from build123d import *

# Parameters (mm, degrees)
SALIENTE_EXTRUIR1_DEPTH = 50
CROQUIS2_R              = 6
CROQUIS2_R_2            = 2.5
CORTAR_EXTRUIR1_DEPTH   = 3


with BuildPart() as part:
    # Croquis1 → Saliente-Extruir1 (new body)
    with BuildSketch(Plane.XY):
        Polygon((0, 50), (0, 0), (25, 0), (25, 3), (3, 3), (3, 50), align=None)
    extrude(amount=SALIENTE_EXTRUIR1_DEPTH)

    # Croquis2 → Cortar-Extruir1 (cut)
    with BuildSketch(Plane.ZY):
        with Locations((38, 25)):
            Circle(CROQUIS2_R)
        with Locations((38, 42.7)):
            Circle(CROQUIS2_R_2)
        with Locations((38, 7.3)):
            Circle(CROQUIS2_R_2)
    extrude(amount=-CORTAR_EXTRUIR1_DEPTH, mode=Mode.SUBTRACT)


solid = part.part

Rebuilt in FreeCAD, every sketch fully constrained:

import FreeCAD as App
import Part
import Sketcher

doc = App.newDocument("Part")
body = doc.addObject("PartDesign::Body", "Body")

# Sketch on XY plane
sketch1 = body.newObject("Sketcher::SketchObject", "Sketch")
sketch1.AttachmentSupport = (doc.getObject("XY_Plane"), [""])
sketch1.MapMode = "FlatFace"
sketch1.addGeometry([
    Part.LineSegment(App.Vector(0, 50, 0), App.Vector(0, 0, 0)),  # 0
    Part.LineSegment(App.Vector(0, 0, 0), App.Vector(25, 0, 0)),  # 1
    Part.LineSegment(App.Vector(25, 0, 0), App.Vector(25, 3, 0)),  # 2
    Part.LineSegment(App.Vector(25, 3, 0), App.Vector(3, 3, 0)),  # 3
    Part.LineSegment(App.Vector(3, 3, 0), App.Vector(3, 50, 0)),  # 4
    Part.LineSegment(App.Vector(3, 50, 0), App.Vector(0, 50, 0)),  # 5
], False)
sketch1.addConstraint([
    Sketcher.Constraint("Coincident", 0, 2, 1, 1),
    Sketcher.Constraint("Coincident", 1, 2, 2, 1),
    Sketcher.Constraint("Coincident", 2, 2, 3, 1),
    Sketcher.Constraint("Coincident", 3, 2, 4, 1),
    Sketcher.Constraint("Coincident", 4, 2, 5, 1),
    Sketcher.Constraint("Coincident", 5, 2, 0, 1),
    Sketcher.Constraint("Vertical", 0),
    Sketcher.Constraint("Horizontal", 1),
    Sketcher.Constraint("Vertical", 2),
    Sketcher.Constraint("Horizontal", 3),
    Sketcher.Constraint("Vertical", 4),
    Sketcher.Constraint("Horizontal", 5),
    Sketcher.Constraint("Coincident", 0, 2, -1, 1),
    Sketcher.Constraint("Equal", 5, 2),
    Sketcher.Constraint("DistanceX", 1, 1, 1, 2, 25.0),
    Sketcher.Constraint("DistanceX", 3, 2, 3, 1, 22.0),
    Sketcher.Constraint("DistanceY", 0, 2, 0, 1, 50.0),
])
pad1 = body.newObject("PartDesign::Pad", "Pad")
pad1.Profile = sketch1
pad1.Length = 50

# Sketch on YZ plane
sketch2 = body.newObject("Sketcher::SketchObject", "Sketch001")
sketch2.AttachmentSupport = (doc.getObject("YZ_Plane"), [""])
sketch2.MapMode = "FlatFace"
sketch2.addGeometry([
    Part.Circle(App.Vector(25, 38, 0), App.Vector(0, 0, 1), 6),
    Part.Circle(App.Vector(42.7, 38, 0), App.Vector(0, 0, 1), 2.5),
    Part.Circle(App.Vector(7.3, 38, 0), App.Vector(0, 0, 1), 2.5),
], False)
sketch2.addConstraint([
    Sketcher.Constraint("Equal", 1, 2),
    Sketcher.Constraint("Horizontal", 0, 3, 1, 3),
    Sketcher.Constraint("Horizontal", 1, 3, 2, 3),
    Sketcher.Constraint("Diameter", 0, 12.0),
    Sketcher.Constraint("Diameter", 1, 5.0),
    Sketcher.Constraint("DistanceX", -1, 1, 0, 3, 25.0),
    Sketcher.Constraint("DistanceY", -1, 1, 0, 3, 38.0),
    Sketcher.Constraint("DistanceX", -1, 1, 1, 3, 42.7),
    Sketcher.Constraint("DistanceX", -1, 1, 2, 3, 7.3),
])
pocket1 = body.newObject("PartDesign::Pocket", "Pocket")
pocket1.Profile = sketch2
pocket1.Length = 3
pocket1.Reversed = True

doc.recompute()
